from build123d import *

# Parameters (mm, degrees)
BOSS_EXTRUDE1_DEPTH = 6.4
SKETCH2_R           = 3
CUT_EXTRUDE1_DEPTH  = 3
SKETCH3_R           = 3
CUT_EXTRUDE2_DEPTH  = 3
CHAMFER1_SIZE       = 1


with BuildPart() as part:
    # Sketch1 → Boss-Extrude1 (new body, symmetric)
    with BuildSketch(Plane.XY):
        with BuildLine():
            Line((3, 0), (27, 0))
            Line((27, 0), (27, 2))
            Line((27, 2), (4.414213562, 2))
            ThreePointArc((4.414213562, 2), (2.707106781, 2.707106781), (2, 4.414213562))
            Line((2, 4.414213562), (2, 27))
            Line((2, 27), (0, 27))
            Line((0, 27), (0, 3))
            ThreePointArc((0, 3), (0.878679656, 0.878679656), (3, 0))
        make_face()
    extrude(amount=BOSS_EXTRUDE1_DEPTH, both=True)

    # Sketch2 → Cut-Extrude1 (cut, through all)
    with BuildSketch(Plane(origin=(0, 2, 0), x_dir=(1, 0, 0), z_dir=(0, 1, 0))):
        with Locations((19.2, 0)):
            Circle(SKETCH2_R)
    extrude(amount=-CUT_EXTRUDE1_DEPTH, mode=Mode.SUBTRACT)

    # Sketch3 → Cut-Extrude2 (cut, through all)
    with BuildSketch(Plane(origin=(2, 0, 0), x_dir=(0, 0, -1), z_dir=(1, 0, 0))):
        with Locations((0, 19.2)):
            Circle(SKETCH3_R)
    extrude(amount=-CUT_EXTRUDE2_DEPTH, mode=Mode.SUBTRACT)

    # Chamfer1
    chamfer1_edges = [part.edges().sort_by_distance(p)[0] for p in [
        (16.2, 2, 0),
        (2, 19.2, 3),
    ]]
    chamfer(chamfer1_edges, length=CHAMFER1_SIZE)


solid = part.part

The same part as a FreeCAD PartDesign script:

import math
import FreeCAD as App
import Part
import Sketcher

V = App.Vector


def edges_at(feature, points):
    """Names of the edges that pass closest to the given points."""
    edges = feature.Shape.Edges
    near = lambda p: min(range(len(edges)), key=lambda i: edges[i].distToShape(Part.Vertex(*p))[0])
    return sorted({f"Edge{near(p) + 1}" for p in points})

doc = App.newDocument("Part")
params = doc.addObject("Spreadsheet::Sheet", "Params")
for row, (alias, value) in enumerate([
    ("sketch1_radius", "3 mm"),
    ("sketch1_width", "24 mm"),
    ("sketch1_width2", "2 mm"),
    ("pad1_length", "12.8 mm"),
    ("sketch2_diameter", "6 mm"),
    ("sketch3_diameter", "6 mm"),
    ("chamfer_size", "1 mm"),
], start=1):
    params.set(f"A{row}", alias)
    params.set(f"B{row}", "=" + value)
    params.setAlias(f"B{row}", alias)

body = doc.addObject("PartDesign::Body", "Body")

# Sketch on XY plane
sketch1 = body.newObject("Sketcher::SketchObject", "Sketch")
sketch1.AttachmentSupport = (doc.getObject("XY_Plane"), [""])
sketch1.MapMode = "FlatFace"
sketch1.addGeometry([
    Part.LineSegment(V(3, 0, 0), V(27, 0, 0)),  # 0
    Part.LineSegment(V(27, 0, 0), V(27, 2, 0)),  # 1
    Part.LineSegment(V(27, 2, 0), V(4.4, 2, 0)),  # 2
    Part.ArcOfCircle(Part.Circle(V(4.4, 4.4, 0), V(0, 0, 1), 2.4), math.radians(180), math.radians(270)),  # 3
    Part.LineSegment(V(2, 4.4, 0), V(2, 27, 0)),  # 4
    Part.LineSegment(V(2, 27, 0), V(0, 27, 0)),  # 5
    Part.LineSegment(V(0, 27, 0), V(0, 3, 0)),  # 6
    Part.ArcOfCircle(Part.Circle(V(3, 3, 0), V(0, 0, 1), 3), math.radians(180), math.radians(270)),  # 7
], False)
sketch1.addConstraint([
    Sketcher.Constraint("Coincident", 0, 2, 1, 1),
    Sketcher.Constraint("Coincident", 1, 2, 2, 1),
    Sketcher.Constraint("Tangent", 2, 2, 3, 2),
    Sketcher.Constraint("Tangent", 3, 1, 4, 1),
    Sketcher.Constraint("Coincident", 4, 2, 5, 1),
    Sketcher.Constraint("Coincident", 5, 2, 6, 1),
    Sketcher.Constraint("Tangent", 6, 2, 7, 1),
    Sketcher.Constraint("Tangent", 7, 2, 0, 1),
    Sketcher.Constraint("Horizontal", 0),
    Sketcher.Constraint("Vertical", 1),
    Sketcher.Constraint("Horizontal", 2),
    Sketcher.Constraint("Vertical", 4),
    Sketcher.Constraint("Horizontal", 5),
    Sketcher.Constraint("Vertical", 6),
    Sketcher.Constraint("PointOnObject", 0, 2, -1),
    Sketcher.Constraint("PointOnObject", 5, 2, -2),
    Sketcher.Constraint("Equal", 5, 1),
    Sketcher.Constraint("Equal", 2, 4),
    Sketcher.Constraint("Radius", 7, 3.0),
    Sketcher.Constraint("DistanceX", 0, 1, 0, 2, 24.0),
    Sketcher.Constraint("DistanceX", 5, 2, 5, 1, 2.0),
    Sketcher.Constraint("Radius", 3, 2.414214),
])
sketch1.setExpression("Constraints[18]", "Params.sketch1_radius")
sketch1.setExpression("Constraints[19]", "Params.sketch1_width")
sketch1.setExpression("Constraints[20]", "Params.sketch1_width2")
pad1 = body.newObject("PartDesign::Pad", "Pad")
pad1.Profile = sketch1
pad1.setExpression("Length", "Params.pad1_length")
pad1.Midplane = True

# Sketch on XZ plane
sketch2 = body.newObject("Sketcher::SketchObject", "Sketch001")
sketch2.AttachmentSupport = (doc.getObject("XZ_Plane"), [""])
sketch2.MapMode = "FlatFace"
sketch2.AttachmentOffset = App.Placement(V(0, 0, -2), App.Rotation())
sketch2.addGeometry(Part.Circle(V(19.2, 0, 0), V(0, 0, 1), 3), False)
sketch2.addConstraint([
    Sketcher.Constraint("PointOnObject", 0, 3, -1),
    Sketcher.Constraint("Diameter", 0, 6.0),
    Sketcher.Constraint("DistanceX", -1, 1, 0, 3, 19.2),
])
sketch2.setExpression("Constraints[1]", "Params.sketch2_diameter")
pocket1 = body.newObject("PartDesign::Pocket", "Pocket")
pocket1.Profile = sketch2
pocket1.Type = "ThroughAll"
pocket1.Reversed = True

# Sketch on YZ plane
sketch3 = body.newObject("Sketcher::SketchObject", "Sketch002")
sketch3.AttachmentSupport = (doc.getObject("YZ_Plane"), [""])
sketch3.MapMode = "FlatFace"
sketch3.AttachmentOffset = App.Placement(V(0, 0, 2), App.Rotation())
sketch3.addGeometry(Part.Circle(V(19.2, 0, 0), V(0, 0, 1), 3), False)
sketch3.addConstraint([
    Sketcher.Constraint("PointOnObject", 0, 3, -1),
    Sketcher.Constraint("Diameter", 0, 6.0),
    Sketcher.Constraint("DistanceX", -1, 1, 0, 3, 19.2),
])
sketch3.setExpression("Constraints[1]", "Params.sketch3_diameter")
pocket2 = body.newObject("PartDesign::Pocket", "Pocket001")
pocket2.Profile = sketch3
pocket2.Type = "ThroughAll"
doc.recompute()

chamfer = body.newObject("PartDesign::Chamfer", "Chamfer")
chamfer.Base = (pocket2, edges_at(pocket2, [(16.2, 2, 0), (2, 19.2, 3)]))
chamfer.setExpression("Size", "Params.chamfer_size")

doc.recompute()
